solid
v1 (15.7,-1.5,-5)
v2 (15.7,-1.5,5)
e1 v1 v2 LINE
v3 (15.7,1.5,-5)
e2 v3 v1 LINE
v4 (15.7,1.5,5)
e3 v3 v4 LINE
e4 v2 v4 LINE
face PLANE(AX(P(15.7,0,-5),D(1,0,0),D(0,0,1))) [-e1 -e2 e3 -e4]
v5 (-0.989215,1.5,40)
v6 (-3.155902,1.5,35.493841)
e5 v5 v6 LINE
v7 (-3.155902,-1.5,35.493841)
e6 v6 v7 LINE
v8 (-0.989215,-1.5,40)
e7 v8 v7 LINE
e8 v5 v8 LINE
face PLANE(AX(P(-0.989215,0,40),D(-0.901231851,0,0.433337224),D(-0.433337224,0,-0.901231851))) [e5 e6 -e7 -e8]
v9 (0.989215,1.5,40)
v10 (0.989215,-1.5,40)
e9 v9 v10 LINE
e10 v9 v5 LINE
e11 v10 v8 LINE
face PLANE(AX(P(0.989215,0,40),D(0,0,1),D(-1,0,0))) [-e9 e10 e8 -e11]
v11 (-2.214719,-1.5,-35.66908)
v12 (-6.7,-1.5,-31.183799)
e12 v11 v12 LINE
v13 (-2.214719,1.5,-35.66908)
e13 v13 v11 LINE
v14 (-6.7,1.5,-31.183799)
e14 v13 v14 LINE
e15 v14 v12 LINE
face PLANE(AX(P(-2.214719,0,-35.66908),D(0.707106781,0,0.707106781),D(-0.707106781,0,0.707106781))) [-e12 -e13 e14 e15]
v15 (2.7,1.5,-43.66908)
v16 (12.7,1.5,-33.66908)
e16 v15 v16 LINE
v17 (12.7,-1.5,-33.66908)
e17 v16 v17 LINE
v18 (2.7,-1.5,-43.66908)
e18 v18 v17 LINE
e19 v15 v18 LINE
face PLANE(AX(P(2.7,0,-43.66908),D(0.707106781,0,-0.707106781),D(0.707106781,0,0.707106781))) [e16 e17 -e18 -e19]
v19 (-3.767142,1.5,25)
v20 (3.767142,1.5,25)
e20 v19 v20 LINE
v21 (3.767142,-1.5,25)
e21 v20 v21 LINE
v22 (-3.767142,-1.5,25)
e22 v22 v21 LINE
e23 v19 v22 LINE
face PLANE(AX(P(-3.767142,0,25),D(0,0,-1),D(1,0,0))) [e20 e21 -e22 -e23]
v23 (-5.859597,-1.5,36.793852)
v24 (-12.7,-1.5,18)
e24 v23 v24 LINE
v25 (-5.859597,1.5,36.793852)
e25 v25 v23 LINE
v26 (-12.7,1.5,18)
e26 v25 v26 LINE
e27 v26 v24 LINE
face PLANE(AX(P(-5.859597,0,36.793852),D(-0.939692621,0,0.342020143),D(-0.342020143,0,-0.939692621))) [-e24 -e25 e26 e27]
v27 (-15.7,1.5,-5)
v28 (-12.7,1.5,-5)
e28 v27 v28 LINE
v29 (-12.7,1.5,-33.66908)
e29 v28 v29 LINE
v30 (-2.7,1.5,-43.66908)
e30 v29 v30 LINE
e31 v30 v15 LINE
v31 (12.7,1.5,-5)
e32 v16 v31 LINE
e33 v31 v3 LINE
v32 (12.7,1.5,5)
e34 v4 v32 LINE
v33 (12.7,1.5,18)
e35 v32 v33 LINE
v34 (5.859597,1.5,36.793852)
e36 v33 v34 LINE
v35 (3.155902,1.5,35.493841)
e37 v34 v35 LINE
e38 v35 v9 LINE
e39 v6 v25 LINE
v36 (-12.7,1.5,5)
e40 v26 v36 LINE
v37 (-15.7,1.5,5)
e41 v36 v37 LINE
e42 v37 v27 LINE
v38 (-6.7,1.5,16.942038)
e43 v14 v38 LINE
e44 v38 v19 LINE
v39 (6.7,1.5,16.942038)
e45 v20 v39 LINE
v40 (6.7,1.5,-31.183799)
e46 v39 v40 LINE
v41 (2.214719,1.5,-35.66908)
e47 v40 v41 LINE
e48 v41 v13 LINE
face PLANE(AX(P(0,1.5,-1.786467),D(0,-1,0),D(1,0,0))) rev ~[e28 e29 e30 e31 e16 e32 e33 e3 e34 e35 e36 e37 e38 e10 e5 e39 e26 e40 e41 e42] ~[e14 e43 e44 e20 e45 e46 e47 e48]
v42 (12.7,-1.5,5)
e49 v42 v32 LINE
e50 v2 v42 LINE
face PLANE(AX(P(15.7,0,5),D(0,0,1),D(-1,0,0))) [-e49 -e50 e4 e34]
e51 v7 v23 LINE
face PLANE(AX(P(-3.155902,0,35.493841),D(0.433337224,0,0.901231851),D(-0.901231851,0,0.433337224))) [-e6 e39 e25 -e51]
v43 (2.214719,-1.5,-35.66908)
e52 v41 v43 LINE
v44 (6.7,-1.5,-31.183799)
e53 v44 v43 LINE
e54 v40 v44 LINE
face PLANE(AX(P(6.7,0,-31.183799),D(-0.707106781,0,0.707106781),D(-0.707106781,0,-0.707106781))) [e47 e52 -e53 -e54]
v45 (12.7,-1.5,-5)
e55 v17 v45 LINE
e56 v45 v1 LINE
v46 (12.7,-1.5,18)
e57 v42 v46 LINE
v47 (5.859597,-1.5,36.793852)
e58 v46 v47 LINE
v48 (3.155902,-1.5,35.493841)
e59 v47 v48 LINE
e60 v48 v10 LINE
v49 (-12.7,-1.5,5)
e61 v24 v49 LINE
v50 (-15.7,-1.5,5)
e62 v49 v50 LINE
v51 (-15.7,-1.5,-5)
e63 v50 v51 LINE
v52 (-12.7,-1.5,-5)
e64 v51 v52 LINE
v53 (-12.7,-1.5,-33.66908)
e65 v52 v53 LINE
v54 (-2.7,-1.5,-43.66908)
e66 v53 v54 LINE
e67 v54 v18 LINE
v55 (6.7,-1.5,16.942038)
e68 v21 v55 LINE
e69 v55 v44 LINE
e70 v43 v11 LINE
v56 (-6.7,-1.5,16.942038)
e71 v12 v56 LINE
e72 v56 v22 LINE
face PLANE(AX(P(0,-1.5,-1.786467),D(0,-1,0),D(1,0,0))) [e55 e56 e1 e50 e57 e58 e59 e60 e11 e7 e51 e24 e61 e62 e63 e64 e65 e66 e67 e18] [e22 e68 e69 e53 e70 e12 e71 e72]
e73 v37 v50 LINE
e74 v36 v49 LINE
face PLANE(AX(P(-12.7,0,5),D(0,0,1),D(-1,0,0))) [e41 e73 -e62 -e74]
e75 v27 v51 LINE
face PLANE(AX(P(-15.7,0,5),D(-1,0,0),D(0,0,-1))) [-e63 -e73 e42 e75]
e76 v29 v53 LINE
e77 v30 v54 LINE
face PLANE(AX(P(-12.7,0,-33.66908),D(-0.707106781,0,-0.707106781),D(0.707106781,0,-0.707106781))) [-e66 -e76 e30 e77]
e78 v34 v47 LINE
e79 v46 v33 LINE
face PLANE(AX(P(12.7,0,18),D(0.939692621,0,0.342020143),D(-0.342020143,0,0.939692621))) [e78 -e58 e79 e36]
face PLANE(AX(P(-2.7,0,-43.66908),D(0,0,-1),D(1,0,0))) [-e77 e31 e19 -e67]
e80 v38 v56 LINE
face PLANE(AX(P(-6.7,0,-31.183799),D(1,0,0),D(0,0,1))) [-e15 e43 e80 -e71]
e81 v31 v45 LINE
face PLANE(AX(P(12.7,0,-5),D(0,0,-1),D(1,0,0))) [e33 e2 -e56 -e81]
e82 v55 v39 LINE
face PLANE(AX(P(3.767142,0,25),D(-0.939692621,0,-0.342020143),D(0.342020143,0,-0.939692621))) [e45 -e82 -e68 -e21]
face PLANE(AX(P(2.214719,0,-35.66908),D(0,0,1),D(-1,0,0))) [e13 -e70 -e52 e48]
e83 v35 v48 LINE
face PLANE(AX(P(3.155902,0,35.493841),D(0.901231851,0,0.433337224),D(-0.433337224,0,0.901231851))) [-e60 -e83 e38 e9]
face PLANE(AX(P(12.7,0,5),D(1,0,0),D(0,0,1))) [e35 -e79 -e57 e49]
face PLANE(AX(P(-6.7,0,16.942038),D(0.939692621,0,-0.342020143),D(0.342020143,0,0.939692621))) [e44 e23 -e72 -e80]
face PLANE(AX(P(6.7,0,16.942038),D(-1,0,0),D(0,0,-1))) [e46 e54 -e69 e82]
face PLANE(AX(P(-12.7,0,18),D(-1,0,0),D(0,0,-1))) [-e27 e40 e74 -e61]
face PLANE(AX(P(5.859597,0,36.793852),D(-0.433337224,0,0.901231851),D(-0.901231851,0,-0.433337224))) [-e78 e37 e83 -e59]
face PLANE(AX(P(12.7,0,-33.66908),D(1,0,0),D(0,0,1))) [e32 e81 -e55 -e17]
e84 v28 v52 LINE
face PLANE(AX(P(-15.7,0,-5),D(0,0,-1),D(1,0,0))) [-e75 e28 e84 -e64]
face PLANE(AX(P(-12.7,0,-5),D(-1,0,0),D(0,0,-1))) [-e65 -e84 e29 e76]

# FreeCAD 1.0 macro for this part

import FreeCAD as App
import Part
import Sketcher
from FreeCAD import Vector
Q = App.Units.Quantity

doc = App.newDocument("Part")
body = doc.addObject("PartDesign::Body", "Body")

# Sketch on XZ plane
sketch1 = doc.addObject("Sketcher::SketchObject", "Sketch")
body.addObject(sketch1)
sketch1.AttachmentSupport = (doc.XZ_Plane, [""])
sketch1.MapMode = "FlatFace"
sketch1.addGeometry(Part.LineSegment(Vector(12.7, 18, 0), Vector(5.859597, 36.793852, 0)), False)
sketch1.addGeometry(Part.LineSegment(Vector(5.859597, 36.793852, 0), Vector(3.155902, 35.493841, 0)), False)
sketch1.addGeometry(Part.LineSegment(Vector(3.155902, 35.493841, 0), Vector(0.989215, 40, 0)), False)
sketch1.addGeometry(Part.LineSegment(Vector(0.989215, 40, 0), Vector(-0.989215, 40, 0)), False)
sketch1.addGeometry(Part.LineSegment(Vector(-0.989215, 40, 0), Vector(-3.155902, 35.493841, 0)), False)
sketch1.addGeometry(Part.LineSegment(Vector(-3.155902, 35.493841, 0), Vector(-5.859597, 36.793852, 0)), False)
sketch1.addGeometry(Part.LineSegment(Vector(-5.859597, 36.793852, 0), Vector(-12.7, 18, 0)), False)
sketch1.addGeometry(Part.LineSegment(Vector(-12.7, 18, 0), Vector(-12.7, 5, 0)), False)
sketch1.addGeometry(Part.LineSegment(Vector(-12.7, 5, 0), Vector(-15.7, 5, 0)), False)
sketch1.addGeometry(Part.LineSegment(Vector(-15.7, 5, 0), Vector(-15.7, -5, 0)), False)
sketch1.addGeometry(Part.LineSegment(Vector(-15.7, -5, 0), Vector(-12.7, -5, 0)), False)
sketch1.addGeometry(Part.LineSegment(Vector(-12.7, -5, 0), Vector(-12.7, -33.66908, 0)), False)
sketch1.addGeometry(Part.LineSegment(Vector(-12.7, -33.66908, 0), Vector(-2.7, -43.66908, 0)), False)
sketch1.addGeometry(Part.LineSegment(Vector(-2.7, -43.66908, 0), Vector(2.7, -43.66908, 0)), False)
sketch1.addGeometry(Part.LineSegment(Vector(2.7, -43.66908, 0), Vector(12.7, -33.66908, 0)), False)
sketch1.addGeometry(Part.LineSegment(Vector(12.7, -33.66908, 0), Vector(12.7, -5, 0)), False)
sketch1.addGeometry(Part.LineSegment(Vector(12.7, -5, 0), Vector(15.7, -5, 0)), False)
sketch1.addGeometry(Part.LineSegment(Vector(15.7, -5, 0), Vector(15.7, 5, 0)), False)
sketch1.addGeometry(Part.LineSegment(Vector(15.7, 5, 0), Vector(12.7, 5, 0)), False)
sketch1.addGeometry(Part.LineSegment(Vector(12.7, 5, 0), Vector(12.7, 18, 0)), False)
sketch1.addGeometry(Part.LineSegment(Vector(6.7, 16.942038, 0), Vector(6.7, -31.183799, 0)), False)
sketch1.addGeometry(Part.LineSegment(Vector(6.7, -31.183799, 0), Vector(2.214719, -35.66908, 0)), False)
sketch1.addGeometry(Part.LineSegment(Vector(2.214719, -35.66908, 0), Vector(-2.214719, -35.66908, 0)), False)
sketch1.addGeometry(Part.LineSegment(Vector(-2.214719, -35.66908, 0), Vector(-6.7, -31.183799, 0)), False)
sketch1.addGeometry(Part.LineSegment(Vector(-6.7, -31.183799, 0), Vector(-6.7, 16.942038, 0)), False)
sketch1.addGeometry(Part.LineSegment(Vector(-6.7, 16.942038, 0), Vector(-3.767142, 25, 0)), False)
sketch1.addGeometry(Part.LineSegment(Vector(-3.767142, 25, 0), Vector(3.767142, 25, 0)), False)
sketch1.addGeometry(Part.LineSegment(Vector(3.767142, 25, 0), Vector(6.7, 16.942038, 0)), False)
sketch1.addConstraint(Sketcher.Constraint("Coincident", 0, 2, 1, 1))
sketch1.addConstraint(Sketcher.Constraint("Coincident", 1, 2, 2, 1))
sketch1.addConstraint(Sketcher.Constraint("Coincident", 2, 2, 3, 1))
sketch1.addConstraint(Sketcher.Constraint("Coincident", 3, 2, 4, 1))
sketch1.addConstraint(Sketcher.Constraint("Coincident", 4, 2, 5, 1))
sketch1.addConstraint(Sketcher.Constraint("Coincident", 5, 2, 6, 1))
sketch1.addConstraint(Sketcher.Constraint("Coincident", 6, 2, 7, 1))
sketch1.addConstraint(Sketcher.Constraint("Coincident", 7, 2, 8, 1))
sketch1.addConstraint(Sketcher.Constraint("Coincident", 8, 2, 9, 1))
sketch1.addConstraint(Sketcher.Constraint("Coincident", 9, 2, 10, 1))
sketch1.addConstraint(Sketcher.Constraint("Coincident", 10, 2, 11, 1))
sketch1.addConstraint(Sketcher.Constraint("Coincident", 11, 2, 12, 1))
sketch1.addConstraint(Sketcher.Constraint("Coincident", 12, 2, 13, 1))
sketch1.addConstraint(Sketcher.Constraint("Coincident", 13, 2, 14, 1))
sketch1.addConstraint(Sketcher.Constraint("Coincident", 14, 2, 15, 1))
sketch1.addConstraint(Sketcher.Constraint("Coincident", 15, 2, 16, 1))
sketch1.addConstraint(Sketcher.Constraint("Coincident", 16, 2, 17, 1))
sketch1.addConstraint(Sketcher.Constraint("Coincident", 17, 2, 18, 1))
sketch1.addConstraint(Sketcher.Constraint("Coincident", 18, 2, 19, 1))
sketch1.addConstraint(Sketcher.Constraint("Coincident", 19, 2, 0, 1))
sketch1.addConstraint(Sketcher.Constraint("Coincident", 20, 2, 21, 1))
sketch1.addConstraint(Sketcher.Constraint("Coincident", 21, 2, 22, 1))
sketch1.addConstraint(Sketcher.Constraint("Coincident", 22, 2, 23, 1))
sketch1.addConstraint(Sketcher.Constraint("Coincident", 23, 2, 24, 1))
sketch1.addConstraint(Sketcher.Constraint("Coincident", 24, 2, 25, 1))
sketch1.addConstraint(Sketcher.Constraint("Coincident", 25, 2, 26, 1))
sketch1.addConstraint(Sketcher.Constraint("Coincident", 26, 2, 27, 1))
sketch1.addConstraint(Sketcher.Constraint("Coincident", 27, 2, 20, 1))
sketch1.addConstraint(Sketcher.Constraint("Horizontal", 3))
sketch1.addConstraint(Sketcher.Constraint("Vertical", 7))
sketch1.addConstraint(Sketcher.Constraint("Horizontal", 8))
sketch1.addConstraint(Sketcher.Constraint("Vertical", 9))
sketch1.addConstraint(Sketcher.Constraint("Horizontal", 10))
sketch1.addConstraint(Sketcher.Constraint("Vertical", 11))
sketch1.addConstraint(Sketcher.Constraint("Horizontal", 13))
sketch1.addConstraint(Sketcher.Constraint("Vertical", 15))
sketch1.addConstraint(Sketcher.Constraint("Horizontal", 16))
sketch1.addConstraint(Sketcher.Constraint("Vertical", 17))
sketch1.addConstraint(Sketcher.Constraint("Horizontal", 18))
sketch1.addConstraint(Sketcher.Constraint("Vertical", 19))
sketch1.addConstraint(Sketcher.Constraint("Vertical", 20))
sketch1.addConstraint(Sketcher.Constraint("Horizontal", 22))
sketch1.addConstraint(Sketcher.Constraint("Vertical", 24))
sketch1.addConstraint(Sketcher.Constraint("Horizontal", 26))
sketch1.addConstraint(Sketcher.Constraint("Symmetric", 7, 2, 15, 2, -1, 1))
sketch1.addConstraint(Sketcher.Constraint("Symmetric", 9, 2, 17, 2, -1, 1))
sketch1.addConstraint(Sketcher.Constraint("Symmetric", 1, 2, 4, 2, -2))
sketch1.addConstraint(Sketcher.Constraint("Symmetric", 0, 2, 5, 2, -2))
sketch1.addConstraint(Sketcher.Constraint("Symmetric", 11, 2, 14, 2, -2))
sketch1.addConstraint(Sketcher.Constraint("Symmetric", 7, 2, 18, 2, -2))
sketch1.addConstraint(Sketcher.Constraint("Symmetric", 20, 2, 23, 2, -2))
sketch1.addConstraint(Sketcher.Constraint("Perpendicular", 1, 2))
sketch1.addConstraint(Sketcher.Constraint("Perpendicular", 4, 5))
sketch1.addConstraint(Sketcher.Constraint("Perpendicular", 12, 14))
sketch1.addConstraint(Sketcher.Constraint("Parallel", 14, 21))
sketch1.addConstraint(Sketcher.Constraint("Perpendicular", 21, 23))
sketch1.addConstraint(Sketcher.Constraint("Parallel", 6, 25))
sketch1.addConstraint(Sketcher.Constraint("Parallel", 0, 27))
sketch1.addConstraint(Sketcher.Constraint("Horizontal", 6, 2, 19, 2))
sketch1.addConstraint(Sketcher.Constraint("Horizontal", 24, 2, 27, 2))
sketch1.addConstraint(Sketcher.Constraint("Equal", 12, 14))
sketch1.addConstraint(Sketcher.Constraint("DistanceX", 8, 2, 8, 1, Q("3 mm")))
sketch1.addConstraint(Sketcher.Constraint("DistanceY", 7, 2, 7, 1, Q("13 mm")))
sketch1.addConstraint(Sketcher.Constraint("DistanceY", 9, 2, 9, 1, Q("10 mm")))
sketch1.addConstraint(Sketcher.Constraint("Angle", 0, Q("110 deg")))
sketch1.addConstraint(Sketcher.Constraint("Distance", 0, Q("20 mm")))
sketch1.addConstraint(Sketcher.Constraint("Distance", 1, Q("3 mm")))
sketch1.addConstraint(Sketcher.Constraint("Distance", 2, Q("5 mm")))
sketch1.addConstraint(Sketcher.Constraint("DistanceX", 13, 1, 13, 2, Q("5.4 mm")))
sketch1.addConstraint(Sketcher.Constraint("DistanceY", -1, 1, 2, 2, Q("40 mm")))
sketch1.addConstraint(Sketcher.Constraint("DistanceY", -1, 1, 25, 2, Q("25 mm")))
sketch1.addConstraint(Sketcher.Constraint("DistanceX", 11, 2, 12, 2, Q("10 mm")))
sketch1.addConstraint(Sketcher.Constraint("DistanceX", 20, 2, 14, 2, Q("6 mm")))
sketch1.addConstraint(Sketcher.Constraint("DistanceY", 13, 2, 21, 2, Q("8 mm")))
sketch1.addConstraint(Sketcher.Constraint("DistanceY", 11, 2, 11, 1, Q("28.66908 mm")))
sketch1.addConstraint(Sketcher.Constraint("DistanceY", 20, 2, -1, 1, Q("31.183799 mm")))
sketch1.addConstraint(Sketcher.Constraint("DistanceX", 26, 1, 26, 2, Q("7.534283 mm")))
pad1 = doc.addObject("PartDesign::Pad", "Pad")
body.addObject(pad1)
pad1.Profile = sketch1
pad1.Length = 3
pad1.Midplane = True

doc.recompute()
